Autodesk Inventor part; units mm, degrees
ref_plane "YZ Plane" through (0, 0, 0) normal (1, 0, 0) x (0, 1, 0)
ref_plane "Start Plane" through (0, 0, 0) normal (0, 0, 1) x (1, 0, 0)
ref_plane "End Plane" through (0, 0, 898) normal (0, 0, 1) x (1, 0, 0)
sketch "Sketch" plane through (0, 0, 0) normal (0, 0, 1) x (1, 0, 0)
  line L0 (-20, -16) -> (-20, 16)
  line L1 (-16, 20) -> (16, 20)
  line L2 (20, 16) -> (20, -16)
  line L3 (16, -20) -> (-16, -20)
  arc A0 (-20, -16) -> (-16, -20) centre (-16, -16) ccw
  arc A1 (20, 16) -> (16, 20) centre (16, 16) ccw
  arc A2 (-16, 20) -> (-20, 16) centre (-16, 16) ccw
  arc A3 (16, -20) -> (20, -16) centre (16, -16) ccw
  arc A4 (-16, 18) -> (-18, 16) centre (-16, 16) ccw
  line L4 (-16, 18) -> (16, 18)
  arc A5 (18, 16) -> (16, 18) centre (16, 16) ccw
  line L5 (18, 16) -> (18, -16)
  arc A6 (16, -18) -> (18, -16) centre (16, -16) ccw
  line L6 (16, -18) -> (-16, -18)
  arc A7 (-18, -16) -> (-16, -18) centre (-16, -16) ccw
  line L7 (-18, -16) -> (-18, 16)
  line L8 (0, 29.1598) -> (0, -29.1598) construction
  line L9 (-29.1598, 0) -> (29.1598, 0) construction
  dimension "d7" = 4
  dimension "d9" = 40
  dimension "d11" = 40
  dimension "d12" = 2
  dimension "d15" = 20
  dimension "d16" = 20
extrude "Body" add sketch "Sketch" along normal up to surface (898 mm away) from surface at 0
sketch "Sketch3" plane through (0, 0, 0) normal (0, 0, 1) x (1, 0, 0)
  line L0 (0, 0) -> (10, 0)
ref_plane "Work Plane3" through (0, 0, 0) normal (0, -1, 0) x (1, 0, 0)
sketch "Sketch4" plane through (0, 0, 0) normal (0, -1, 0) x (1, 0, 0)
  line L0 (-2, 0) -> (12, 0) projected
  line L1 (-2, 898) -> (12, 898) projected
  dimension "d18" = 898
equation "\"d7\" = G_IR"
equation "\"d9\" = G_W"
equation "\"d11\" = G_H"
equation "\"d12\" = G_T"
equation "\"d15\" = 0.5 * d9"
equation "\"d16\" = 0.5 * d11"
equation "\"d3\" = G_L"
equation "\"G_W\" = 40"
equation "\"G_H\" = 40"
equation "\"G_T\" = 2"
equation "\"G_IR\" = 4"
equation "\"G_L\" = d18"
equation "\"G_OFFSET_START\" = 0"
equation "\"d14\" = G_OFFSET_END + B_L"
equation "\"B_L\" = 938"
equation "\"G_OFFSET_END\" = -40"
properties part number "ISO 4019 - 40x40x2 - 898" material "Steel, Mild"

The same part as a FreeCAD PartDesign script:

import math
import FreeCAD as App
import Part
import Sketcher
from FreeCAD import Vector

doc = App.newDocument("Part")
params = doc.addObject("Spreadsheet::Sheet", "Params")
for row, (alias, value) in enumerate([
    ("sketch1_radius", "4 mm"),
    ("sketch1_radius2", "2 mm"),
    ("pad1_length", "898 mm"),
], start=1):
    params.set(f"A{row}", alias)
    params.set(f"B{row}", "=" + value)
    params.setAlias(f"B{row}", alias)

body = doc.addObject("PartDesign::Body", "Body")

# Sketch on XY plane
sketch1 = body.newObject("Sketcher::SketchObject", "Sketch")
sketch1.AttachmentSupport = (doc.getObject("XY_Plane"), [""])
sketch1.MapMode = "FlatFace"
sketch1.addGeometry([
    Part.LineSegment(Vector(-20, 16, 0), Vector(-20, -16, 0)),  # 0
    Part.ArcOfCircle(Part.Circle(Vector(-16, -16, 0), Vector(0, 0, 1), 4), math.radians(180), math.radians(270)),  # 1
    Part.LineSegment(Vector(-16, -20, 0), Vector(16, -20, 0)),  # 2
    Part.ArcOfCircle(Part.Circle(Vector(16, -16, 0), Vector(0, 0, 1), 4), math.radians(-90), math.radians(0)),  # 3
    Part.LineSegment(Vector(20, -16, 0), Vector(20, 16, 0)),  # 4
    Part.ArcOfCircle(Part.Circle(Vector(16, 16, 0), Vector(0, 0, 1), 4), math.radians(0), math.radians(90)),  # 5
    Part.LineSegment(Vector(16, 20, 0), Vector(-16, 20, 0)),  # 6
    Part.ArcOfCircle(Part.Circle(Vector(-16, 16, 0), Vector(0, 0, 1), 4), math.radians(90), math.radians(180)),  # 7
    Part.ArcOfCircle(Part.Circle(Vector(-16, 16, 0), Vector(0, 0, 1), 2), math.radians(90), math.radians(180)),  # 8
    Part.LineSegment(Vector(-16, 18, 0), Vector(16, 18, 0)),  # 9
    Part.ArcOfCircle(Part.Circle(Vector(16, 16, 0), Vector(0, 0, 1), 2), math.radians(0), math.radians(90)),  # 10
    Part.LineSegment(Vector(18, 16, 0), Vector(18, -16, 0)),  # 11
    Part.ArcOfCircle(Part.Circle(Vector(16, -16, 0), Vector(0, 0, 1), 2), math.radians(-90), math.radians(0)),  # 12
    Part.LineSegment(Vector(16, -18, 0), Vector(-16, -18, 0)),  # 13
    Part.ArcOfCircle(Part.Circle(Vector(-16, -16, 0), Vector(0, 0, 1), 2), math.radians(180), math.radians(270)),  # 14
    Part.LineSegment(Vector(-18, -16, 0), Vector(-18, 16, 0)),  # 15
], False)
sketch1.addConstraint([
    Sketcher.Constraint("Tangent", 0, 2, 1, 1),
    Sketcher.Constraint("Tangent", 1, 2, 2, 1),
    Sketcher.Constraint("Tangent", 2, 2, 3, 1),
    Sketcher.Constraint("Tangent", 3, 2, 4, 1),
    Sketcher.Constraint("Tangent", 4, 2, 5, 1),
    Sketcher.Constraint("Tangent", 5, 2, 6, 1),
    Sketcher.Constraint("Tangent", 6, 2, 7, 1),
    Sketcher.Constraint("Tangent", 7, 2, 0, 1),
    Sketcher.Constraint("Tangent", 8, 1, 9, 1),
    Sketcher.Constraint("Tangent", 9, 2, 10, 2),
    Sketcher.Constraint("Tangent", 10, 1, 11, 1),
    Sketcher.Constraint("Tangent", 11, 2, 12, 2),
    Sketcher.Constraint("Tangent", 12, 1, 13, 1),
    Sketcher.Constraint("Tangent", 13, 2, 14, 2),
    Sketcher.Constraint("Tangent", 14, 1, 15, 1),
    Sketcher.Constraint("Tangent", 15, 2, 8, 2),
    Sketcher.Constraint("Vertical", 0),
    Sketcher.Constraint("Horizontal", 2),
    Sketcher.Constraint("Vertical", 4),
    Sketcher.Constraint("Horizontal", 6),
    Sketcher.Constraint("Horizontal", 9),
    Sketcher.Constraint("Vertical", 11),
    Sketcher.Constraint("Horizontal", 13),
    Sketcher.Constraint("Vertical", 15),
    Sketcher.Constraint("Coincident", 8, 3, 7, 3),
    Sketcher.Constraint("Coincident", 10, 3, 5, 3),
    Sketcher.Constraint("Coincident", 12, 3, 3, 3),
    Sketcher.Constraint("Equal", 1, 3),
    Sketcher.Constraint("Equal", 3, 5),
    Sketcher.Constraint("Equal", 5, 7),
    Sketcher.Constraint("Equal", 12, 14),
    Sketcher.Constraint("Symmetric", 1, 3, 5, 3, -1, 1),
    Sketcher.Constraint("Equal", 13, 0),
    Sketcher.Constraint("Radius", 1, 4.0),
    Sketcher.Constraint("Radius", 8, 2.0),
    Sketcher.Constraint("DistanceX", 0, 2, -1, 1, 20.0),
])
sketch1.setExpression("Constraints[33]", "Params.sketch1_radius")
sketch1.setExpression("Constraints[34]", "Params.sketch1_radius2")
pad1 = body.newObject("PartDesign::Pad", "Pad")
pad1.Profile = sketch1
pad1.setExpression("Length", "Params.pad1_length")

doc.recompute()
